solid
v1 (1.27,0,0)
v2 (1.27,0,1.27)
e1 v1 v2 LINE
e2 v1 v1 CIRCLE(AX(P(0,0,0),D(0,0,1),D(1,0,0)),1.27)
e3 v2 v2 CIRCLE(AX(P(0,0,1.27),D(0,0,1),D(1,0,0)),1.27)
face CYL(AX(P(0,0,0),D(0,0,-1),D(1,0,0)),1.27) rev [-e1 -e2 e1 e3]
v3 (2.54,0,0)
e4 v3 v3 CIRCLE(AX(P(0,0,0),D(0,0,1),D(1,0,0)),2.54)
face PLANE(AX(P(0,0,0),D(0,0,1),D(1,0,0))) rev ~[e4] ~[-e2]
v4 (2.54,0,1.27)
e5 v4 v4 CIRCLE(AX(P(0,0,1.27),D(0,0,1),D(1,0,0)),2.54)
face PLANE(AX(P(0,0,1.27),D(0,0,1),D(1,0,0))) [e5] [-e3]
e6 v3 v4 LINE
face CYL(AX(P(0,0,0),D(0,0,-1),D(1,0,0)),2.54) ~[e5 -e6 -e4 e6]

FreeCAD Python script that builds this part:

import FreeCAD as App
import Part
import Sketcher
Q = App.Units.Quantity

doc = App.newDocument("Part")
params = doc.addObject("Spreadsheet::Sheet", "Params")
for row, (alias, value) in enumerate([
    ("sketch1_diameter", "0.2 in"),
    ("sketch1_diameter2", "0.1 in"),
    ("pad1_length", "0.05 in"),
], start=1):
    params.set(f"A{row}", alias)
    params.set(f"B{row}", "=" + value)
    params.setAlias(f"B{row}", alias)

body = doc.addObject("PartDesign::Body", "Body")

# Sketch on XY plane
sketch1 = body.newObject("Sketcher::SketchObject", "Sketch")
sketch1.AttachmentSupport = (doc.getObject("XY_Plane"), [""])
sketch1.MapMode = "FlatFace"
sketch1.addGeometry([
    Part.Circle(App.Vector(0, 0, 0), App.Vector(0, 0, 1), 2.5),
    Part.Circle(App.Vector(0, 0, 0), App.Vector(0, 0, 1), 1.3),
], False)
sketch1.addConstraint([
    Sketcher.Constraint("Coincident", 0, 3, -1, 1),
    Sketcher.Constraint("Coincident", 1, 3, -1, 1),
    Sketcher.Constraint("Diameter", 0, Q("0.2 in")),
    Sketcher.Constraint("Diameter", 1, Q("0.1 in")),
])
sketch1.setExpression("Constraints[2]", "Params.sketch1_diameter")
sketch1.setExpression("Constraints[3]", "Params.sketch1_diameter2")
pad1 = body.newObject("PartDesign::Pad", "Pad")
pad1.Profile = sketch1
pad1.setExpression("Length", "Params.pad1_length")

doc.recompute()
